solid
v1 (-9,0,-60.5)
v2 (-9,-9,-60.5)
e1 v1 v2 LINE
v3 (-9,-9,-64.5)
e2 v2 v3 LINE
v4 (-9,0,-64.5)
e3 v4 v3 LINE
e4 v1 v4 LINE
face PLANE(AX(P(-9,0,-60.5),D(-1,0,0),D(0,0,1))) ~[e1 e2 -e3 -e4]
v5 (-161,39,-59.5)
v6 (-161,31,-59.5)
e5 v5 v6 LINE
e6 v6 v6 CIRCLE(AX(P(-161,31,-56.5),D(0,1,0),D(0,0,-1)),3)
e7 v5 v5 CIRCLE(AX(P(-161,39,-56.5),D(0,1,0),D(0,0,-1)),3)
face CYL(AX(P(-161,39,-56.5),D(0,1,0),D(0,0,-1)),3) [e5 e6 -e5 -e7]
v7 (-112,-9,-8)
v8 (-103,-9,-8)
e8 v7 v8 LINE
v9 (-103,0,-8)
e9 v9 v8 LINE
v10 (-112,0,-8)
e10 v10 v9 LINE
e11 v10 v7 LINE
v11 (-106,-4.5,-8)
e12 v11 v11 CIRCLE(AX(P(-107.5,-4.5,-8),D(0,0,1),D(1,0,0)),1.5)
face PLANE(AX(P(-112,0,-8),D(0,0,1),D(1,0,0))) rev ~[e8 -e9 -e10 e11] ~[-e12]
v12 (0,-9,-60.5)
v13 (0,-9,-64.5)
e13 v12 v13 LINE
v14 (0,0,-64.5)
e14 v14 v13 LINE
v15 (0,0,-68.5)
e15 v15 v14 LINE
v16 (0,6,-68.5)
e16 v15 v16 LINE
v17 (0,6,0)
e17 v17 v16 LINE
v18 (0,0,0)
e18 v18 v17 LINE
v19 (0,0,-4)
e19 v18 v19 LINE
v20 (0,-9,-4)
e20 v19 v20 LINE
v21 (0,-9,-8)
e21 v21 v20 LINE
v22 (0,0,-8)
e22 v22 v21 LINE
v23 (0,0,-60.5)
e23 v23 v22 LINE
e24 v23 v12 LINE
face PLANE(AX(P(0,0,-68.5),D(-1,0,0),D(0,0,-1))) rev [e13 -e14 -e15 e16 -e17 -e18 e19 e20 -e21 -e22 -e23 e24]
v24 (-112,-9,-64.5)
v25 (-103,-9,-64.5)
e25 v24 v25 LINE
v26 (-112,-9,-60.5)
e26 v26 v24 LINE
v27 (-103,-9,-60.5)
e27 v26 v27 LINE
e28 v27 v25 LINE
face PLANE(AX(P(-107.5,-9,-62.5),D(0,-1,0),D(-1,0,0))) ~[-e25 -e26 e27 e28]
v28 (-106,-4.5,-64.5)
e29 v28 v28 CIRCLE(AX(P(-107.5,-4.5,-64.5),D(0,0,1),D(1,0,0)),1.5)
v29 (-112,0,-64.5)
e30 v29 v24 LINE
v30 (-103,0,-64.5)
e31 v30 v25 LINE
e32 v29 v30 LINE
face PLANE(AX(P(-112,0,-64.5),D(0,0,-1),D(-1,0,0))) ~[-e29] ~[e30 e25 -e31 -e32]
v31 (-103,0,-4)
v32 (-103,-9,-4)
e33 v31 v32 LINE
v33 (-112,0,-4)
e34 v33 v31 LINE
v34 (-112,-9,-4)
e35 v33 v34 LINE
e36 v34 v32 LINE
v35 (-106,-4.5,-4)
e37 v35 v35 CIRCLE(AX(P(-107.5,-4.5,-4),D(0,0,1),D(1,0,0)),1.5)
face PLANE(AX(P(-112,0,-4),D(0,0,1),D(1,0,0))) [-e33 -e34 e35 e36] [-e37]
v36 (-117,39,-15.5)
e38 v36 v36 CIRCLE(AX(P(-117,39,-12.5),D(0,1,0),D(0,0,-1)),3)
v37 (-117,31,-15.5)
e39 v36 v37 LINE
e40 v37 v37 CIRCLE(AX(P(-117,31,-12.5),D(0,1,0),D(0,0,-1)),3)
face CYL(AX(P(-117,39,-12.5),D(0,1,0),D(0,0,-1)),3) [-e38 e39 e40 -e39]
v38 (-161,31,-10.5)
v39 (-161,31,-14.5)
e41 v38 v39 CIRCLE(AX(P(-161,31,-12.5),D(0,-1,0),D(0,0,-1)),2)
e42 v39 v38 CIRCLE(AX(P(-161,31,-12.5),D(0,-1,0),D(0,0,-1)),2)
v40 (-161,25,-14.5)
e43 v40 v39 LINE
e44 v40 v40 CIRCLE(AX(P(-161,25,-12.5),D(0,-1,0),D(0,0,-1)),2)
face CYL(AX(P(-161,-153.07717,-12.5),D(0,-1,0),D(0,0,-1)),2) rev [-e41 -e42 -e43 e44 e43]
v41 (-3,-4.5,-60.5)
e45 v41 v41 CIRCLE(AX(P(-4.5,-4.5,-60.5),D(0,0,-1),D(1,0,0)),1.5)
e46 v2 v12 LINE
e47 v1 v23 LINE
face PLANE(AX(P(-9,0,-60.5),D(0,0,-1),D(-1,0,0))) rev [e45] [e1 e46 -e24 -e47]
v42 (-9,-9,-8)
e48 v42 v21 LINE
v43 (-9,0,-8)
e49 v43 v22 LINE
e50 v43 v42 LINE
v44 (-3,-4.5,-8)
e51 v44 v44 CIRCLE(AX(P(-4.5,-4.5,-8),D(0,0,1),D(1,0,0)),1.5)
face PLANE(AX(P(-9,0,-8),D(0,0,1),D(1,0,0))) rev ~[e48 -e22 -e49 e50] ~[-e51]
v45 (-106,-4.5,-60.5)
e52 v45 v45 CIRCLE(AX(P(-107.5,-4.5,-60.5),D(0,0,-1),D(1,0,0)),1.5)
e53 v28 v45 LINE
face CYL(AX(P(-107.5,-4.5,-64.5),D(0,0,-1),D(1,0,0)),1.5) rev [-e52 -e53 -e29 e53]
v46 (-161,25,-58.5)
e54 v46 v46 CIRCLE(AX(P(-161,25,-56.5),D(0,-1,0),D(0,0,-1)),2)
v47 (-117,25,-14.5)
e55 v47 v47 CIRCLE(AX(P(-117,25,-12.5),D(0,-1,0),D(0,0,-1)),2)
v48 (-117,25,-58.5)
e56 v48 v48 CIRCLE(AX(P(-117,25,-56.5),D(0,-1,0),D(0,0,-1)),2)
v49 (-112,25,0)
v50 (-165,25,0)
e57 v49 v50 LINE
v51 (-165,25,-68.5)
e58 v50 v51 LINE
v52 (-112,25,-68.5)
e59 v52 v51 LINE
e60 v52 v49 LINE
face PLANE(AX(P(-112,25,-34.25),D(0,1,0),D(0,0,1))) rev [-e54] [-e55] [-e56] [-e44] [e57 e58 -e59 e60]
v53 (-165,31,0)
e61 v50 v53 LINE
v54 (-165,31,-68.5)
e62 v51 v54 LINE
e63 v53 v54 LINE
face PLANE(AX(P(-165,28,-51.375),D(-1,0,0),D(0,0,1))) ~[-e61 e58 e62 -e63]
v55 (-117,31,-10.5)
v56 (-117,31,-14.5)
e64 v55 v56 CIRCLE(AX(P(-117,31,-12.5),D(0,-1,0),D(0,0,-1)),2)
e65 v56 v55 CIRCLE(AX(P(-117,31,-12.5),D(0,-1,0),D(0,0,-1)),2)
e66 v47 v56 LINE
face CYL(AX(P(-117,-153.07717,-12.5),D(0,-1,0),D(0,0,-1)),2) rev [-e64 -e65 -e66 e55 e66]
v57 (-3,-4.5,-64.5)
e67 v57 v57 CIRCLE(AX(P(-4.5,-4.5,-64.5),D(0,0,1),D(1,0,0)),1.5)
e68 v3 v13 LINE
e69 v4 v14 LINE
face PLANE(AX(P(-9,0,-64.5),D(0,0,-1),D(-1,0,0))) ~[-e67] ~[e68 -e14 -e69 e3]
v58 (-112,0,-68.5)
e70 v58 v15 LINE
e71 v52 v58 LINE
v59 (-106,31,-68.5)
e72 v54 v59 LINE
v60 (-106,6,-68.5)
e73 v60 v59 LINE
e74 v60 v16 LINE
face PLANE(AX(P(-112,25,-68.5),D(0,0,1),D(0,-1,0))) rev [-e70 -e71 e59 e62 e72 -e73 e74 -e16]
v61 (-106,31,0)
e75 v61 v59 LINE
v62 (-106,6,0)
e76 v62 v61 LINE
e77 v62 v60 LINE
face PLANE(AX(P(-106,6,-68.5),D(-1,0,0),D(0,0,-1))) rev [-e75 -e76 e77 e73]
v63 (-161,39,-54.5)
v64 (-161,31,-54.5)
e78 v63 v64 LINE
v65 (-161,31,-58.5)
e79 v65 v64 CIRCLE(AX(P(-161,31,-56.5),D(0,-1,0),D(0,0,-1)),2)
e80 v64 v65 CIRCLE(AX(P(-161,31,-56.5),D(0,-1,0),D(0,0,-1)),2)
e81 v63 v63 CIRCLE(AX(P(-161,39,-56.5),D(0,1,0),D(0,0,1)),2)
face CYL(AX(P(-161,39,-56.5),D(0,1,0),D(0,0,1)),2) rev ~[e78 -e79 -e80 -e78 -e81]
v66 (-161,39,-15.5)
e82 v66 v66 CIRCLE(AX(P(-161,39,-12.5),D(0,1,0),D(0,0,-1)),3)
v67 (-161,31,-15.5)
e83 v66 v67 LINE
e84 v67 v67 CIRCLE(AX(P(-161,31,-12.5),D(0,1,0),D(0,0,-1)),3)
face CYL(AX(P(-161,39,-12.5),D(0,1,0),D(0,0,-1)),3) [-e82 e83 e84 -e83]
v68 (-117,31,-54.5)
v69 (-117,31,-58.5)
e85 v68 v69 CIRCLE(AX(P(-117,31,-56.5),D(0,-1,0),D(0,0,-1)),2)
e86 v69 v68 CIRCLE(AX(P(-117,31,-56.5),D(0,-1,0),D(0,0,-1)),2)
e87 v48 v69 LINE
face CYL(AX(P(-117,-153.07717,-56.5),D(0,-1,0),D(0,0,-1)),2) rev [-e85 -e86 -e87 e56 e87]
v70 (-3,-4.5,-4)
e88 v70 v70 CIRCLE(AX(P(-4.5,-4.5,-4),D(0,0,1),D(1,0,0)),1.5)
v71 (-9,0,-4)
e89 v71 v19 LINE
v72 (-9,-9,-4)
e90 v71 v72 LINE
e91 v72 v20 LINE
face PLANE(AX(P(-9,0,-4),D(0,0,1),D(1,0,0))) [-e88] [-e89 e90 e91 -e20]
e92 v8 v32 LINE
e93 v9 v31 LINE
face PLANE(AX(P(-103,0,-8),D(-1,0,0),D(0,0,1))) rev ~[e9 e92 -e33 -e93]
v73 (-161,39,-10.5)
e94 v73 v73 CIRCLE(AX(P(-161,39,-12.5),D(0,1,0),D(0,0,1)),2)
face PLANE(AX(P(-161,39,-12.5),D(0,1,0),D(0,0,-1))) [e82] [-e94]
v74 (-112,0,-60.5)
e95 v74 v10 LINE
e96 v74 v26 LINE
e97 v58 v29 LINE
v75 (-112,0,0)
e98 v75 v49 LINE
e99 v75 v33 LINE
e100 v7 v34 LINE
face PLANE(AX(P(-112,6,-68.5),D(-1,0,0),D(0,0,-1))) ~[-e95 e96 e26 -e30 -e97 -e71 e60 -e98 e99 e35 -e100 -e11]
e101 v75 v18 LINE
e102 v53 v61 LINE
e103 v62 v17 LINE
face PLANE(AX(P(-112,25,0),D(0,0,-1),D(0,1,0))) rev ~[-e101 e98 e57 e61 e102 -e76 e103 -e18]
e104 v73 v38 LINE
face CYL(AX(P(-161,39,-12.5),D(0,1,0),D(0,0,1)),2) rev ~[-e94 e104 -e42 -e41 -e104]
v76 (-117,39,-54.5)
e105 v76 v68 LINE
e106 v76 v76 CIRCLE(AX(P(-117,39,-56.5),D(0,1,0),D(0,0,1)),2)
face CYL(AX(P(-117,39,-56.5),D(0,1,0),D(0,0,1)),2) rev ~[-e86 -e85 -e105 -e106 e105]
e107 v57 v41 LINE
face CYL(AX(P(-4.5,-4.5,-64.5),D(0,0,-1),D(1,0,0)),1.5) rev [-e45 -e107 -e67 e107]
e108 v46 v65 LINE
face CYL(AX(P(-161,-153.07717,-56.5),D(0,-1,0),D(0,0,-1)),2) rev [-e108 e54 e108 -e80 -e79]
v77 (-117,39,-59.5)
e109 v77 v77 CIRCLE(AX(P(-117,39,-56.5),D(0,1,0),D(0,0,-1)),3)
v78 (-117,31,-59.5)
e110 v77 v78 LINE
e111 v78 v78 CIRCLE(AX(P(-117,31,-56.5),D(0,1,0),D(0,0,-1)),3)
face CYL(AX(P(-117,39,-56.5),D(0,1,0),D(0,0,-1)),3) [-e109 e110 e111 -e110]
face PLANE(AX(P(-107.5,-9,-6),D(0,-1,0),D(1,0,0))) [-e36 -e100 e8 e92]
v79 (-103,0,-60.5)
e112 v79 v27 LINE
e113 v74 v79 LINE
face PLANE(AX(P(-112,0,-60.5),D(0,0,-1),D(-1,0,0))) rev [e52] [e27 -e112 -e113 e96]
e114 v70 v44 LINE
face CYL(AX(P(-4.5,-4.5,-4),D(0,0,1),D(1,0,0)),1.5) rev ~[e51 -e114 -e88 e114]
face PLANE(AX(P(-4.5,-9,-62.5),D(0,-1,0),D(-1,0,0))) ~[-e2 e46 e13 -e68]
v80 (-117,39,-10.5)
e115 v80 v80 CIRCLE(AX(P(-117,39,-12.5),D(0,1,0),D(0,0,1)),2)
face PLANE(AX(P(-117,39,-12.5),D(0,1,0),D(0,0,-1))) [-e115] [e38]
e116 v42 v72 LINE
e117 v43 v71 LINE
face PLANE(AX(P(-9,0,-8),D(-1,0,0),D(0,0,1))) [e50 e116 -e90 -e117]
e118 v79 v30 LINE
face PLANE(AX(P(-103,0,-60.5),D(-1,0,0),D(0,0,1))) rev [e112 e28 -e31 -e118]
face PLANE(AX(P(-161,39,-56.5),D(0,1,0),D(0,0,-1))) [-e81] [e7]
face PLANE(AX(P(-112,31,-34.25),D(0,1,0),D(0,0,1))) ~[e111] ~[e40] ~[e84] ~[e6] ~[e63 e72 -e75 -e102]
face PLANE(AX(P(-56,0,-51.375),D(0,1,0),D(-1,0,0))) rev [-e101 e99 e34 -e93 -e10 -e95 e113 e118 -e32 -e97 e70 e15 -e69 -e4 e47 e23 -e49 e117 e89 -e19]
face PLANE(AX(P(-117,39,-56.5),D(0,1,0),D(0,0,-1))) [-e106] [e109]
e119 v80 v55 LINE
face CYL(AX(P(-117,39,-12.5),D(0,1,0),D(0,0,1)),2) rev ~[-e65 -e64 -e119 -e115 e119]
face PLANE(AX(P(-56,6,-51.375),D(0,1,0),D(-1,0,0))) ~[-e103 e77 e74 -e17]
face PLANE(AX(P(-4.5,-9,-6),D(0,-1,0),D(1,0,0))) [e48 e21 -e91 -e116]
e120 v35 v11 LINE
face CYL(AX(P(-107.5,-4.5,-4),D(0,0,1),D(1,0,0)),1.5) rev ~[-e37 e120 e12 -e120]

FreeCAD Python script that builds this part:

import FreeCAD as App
import Part
import Sketcher
from FreeCAD import Vector

doc = App.newDocument("Part")
body = doc.addObject("PartDesign::Body", "Body")

# Sketch on XZ plane
sketch1 = body.newObject("Sketcher::SketchObject", "Sketch")
sketch1.AttachmentSupport = (doc.getObject("XZ_Plane"), [""])
sketch1.MapMode = "FlatFace"
sketch1.addGeometry(Part.LineSegment(Vector(-112, -34, 0), Vector(-112, 0, 0)), False)
sketch1.addGeometry(Part.LineSegment(Vector(-112, 0, 0), Vector(0, 0, 0)), False)
sketch1.addGeometry(Part.LineSegment(Vector(0, 0, 0), Vector(0, -34, 0)), False)
sketch1.addGeometry(Part.LineSegment(Vector(0, -34, 0), Vector(-112, -34, 0)), False)
sketch1.addConstraint(Sketcher.Constraint("Coincident", 0, 2, 1, 1))
sketch1.addConstraint(Sketcher.Constraint("Coincident", 1, 2, 2, 1))
sketch1.addConstraint(Sketcher.Constraint("Coincident", 2, 2, 3, 1))
sketch1.addConstraint(Sketcher.Constraint("Coincident", 3, 2, 0, 1))
sketch1.addConstraint(Sketcher.Constraint("Vertical", 0))
sketch1.addConstraint(Sketcher.Constraint("Horizontal", 1))
sketch1.addConstraint(Sketcher.Constraint("Vertical", 2))
sketch1.addConstraint(Sketcher.Constraint("Horizontal", 3))
sketch1.addConstraint(Sketcher.Constraint("Coincident", 1, 2, -1, 1))
sketch1.addConstraint(Sketcher.Constraint("DistanceX", 1, 1, 1, 2, 112.0))
sketch1.addConstraint(Sketcher.Constraint("DistanceY", 0, 1, 0, 2, 34.25))
pad1 = body.newObject("PartDesign::Pad", "Pad")
pad1.Profile = sketch1
pad1.Length = 6
pad1.Reversed = True

# Sketch on XZ plane
sketch2 = body.newObject("Sketcher::SketchObject", "Sketch001")
sketch2.AttachmentSupport = (doc.getObject("XZ_Plane"), [""])
sketch2.MapMode = "FlatFace"
sketch2.addGeometry(Part.LineSegment(Vector(-112, -4, 0), Vector(-112, -8, 0)), False)
sketch2.addGeometry(Part.LineSegment(Vector(-112, -8, 0), Vector(-103, -8, 0)), False)
sketch2.addGeometry(Part.LineSegment(Vector(-103, -8, 0), Vector(-103, -4, 0)), False)
sketch2.addGeometry(Part.LineSegment(Vector(-103, -4, 0), Vector(-112, -4, 0)), False)
sketch2.addGeometry(Part.LineSegment(Vector(-9, -4, 0), Vector(-9, -8, 0)), False)
sketch2.addGeometry(Part.LineSegment(Vector(-9, -8, 0), Vector(0, -8, 0)), False)
sketch2.addGeometry(Part.LineSegment(Vector(0, -8, 0), Vector(0, -4, 0)), False)
sketch2.addGeometry(Part.LineSegment(Vector(0, -4, 0), Vector(-9, -4, 0)), False)
sketch2.addConstraint(Sketcher.Constraint("Coincident", 0, 2, 1, 1))
sketch2.addConstraint(Sketcher.Constraint("Coincident", 1, 2, 2, 1))
sketch2.addConstraint(Sketcher.Constraint("Coincident", 2, 2, 3, 1))
sketch2.addConstraint(Sketcher.Constraint("Coincident", 3, 2, 0, 1))
sketch2.addConstraint(Sketcher.Constraint("Coincident", 4, 2, 5, 1))
sketch2.addConstraint(Sketcher.Constraint("Coincident", 5, 2, 6, 1))
sketch2.addConstraint(Sketcher.Constraint("Coincident", 6, 2, 7, 1))
sketch2.addConstraint(Sketcher.Constraint("Coincident", 7, 2, 4, 1))
sketch2.addConstraint(Sketcher.Constraint("Vertical", 0))
sketch2.addConstraint(Sketcher.Constraint("Horizontal", 1))
sketch2.addConstraint(Sketcher.Constraint("Vertical", 2))
sketch2.addConstraint(Sketcher.Constraint("Horizontal", 3))
sketch2.addConstraint(Sketcher.Constraint("Vertical", 4))
sketch2.addConstraint(Sketcher.Constraint("Horizontal", 5))
sketch2.addConstraint(Sketcher.Constraint("Vertical", 6))
sketch2.addConstraint(Sketcher.Constraint("Horizontal", 7))
sketch2.addConstraint(Sketcher.Constraint("PointOnObject", 5, 2, -2))
sketch2.addConstraint(Sketcher.Constraint("Horizontal", 1, 2, 4, 2))
sketch2.addConstraint(Sketcher.Constraint("Horizontal", 3, 2, 6, 2))
sketch2.addConstraint(Sketcher.Constraint("Equal", 3, 5))
sketch2.addConstraint(Sketcher.Constraint("DistanceX", 1, 1, 1, 2, 9.0))
sketch2.addConstraint(Sketcher.Constraint("DistanceY", 0, 2, 0, 1, 4.0))
sketch2.addConstraint(Sketcher.Constraint("DistanceX", 0, 2, -1, 1, 112.0))
sketch2.addConstraint(Sketcher.Constraint("DistanceY", 0, 2, -1, 1, 8.0))
pad2 = body.newObject("PartDesign::Pad", "Pad001")
pad2.Profile = sketch2
pad2.Length = 9

# Sketch on XY plane
sketch3 = body.newObject("Sketcher::SketchObject", "Sketch002")
sketch3.AttachmentSupport = (doc.getObject("XY_Plane"), [""])
sketch3.MapMode = "FlatFace"
sketch3.AttachmentOffset = App.Placement(Vector(0, 0, -4), App.Rotation())
sketch3.addGeometry(Part.Circle(Vector(-107.5, -4.5, 0), Vector(0, 0, 1), 1.5), False)
sketch3.addGeometry(Part.Circle(Vector(-4.5, -4.5, 0), Vector(0, 0, 1), 1.5), False)
sketch3.addConstraint(Sketcher.Constraint("Equal", 0, 1))
sketch3.addConstraint(Sketcher.Constraint("Horizontal", 0, 3, 1, 3))
sketch3.addConstraint(Sketcher.Constraint("Diameter", 0, 3.0))
sketch3.addConstraint(Sketcher.Constraint("DistanceX", 0, 3, 1, 3, 103.0))
sketch3.addConstraint(Sketcher.Constraint("DistanceX", 0, 3, -1, 1, 107.5))
sketch3.addConstraint(Sketcher.Constraint("DistanceY", 0, 3, -1, 1, 4.5))
pocket1 = body.newObject("PartDesign::Pocket", "Pocket")
pocket1.Profile = sketch3
pocket1.Type = "ThroughAll"

# Sketch on XZ plane
sketch4 = body.newObject("Sketcher::SketchObject", "Sketch003")
sketch4.AttachmentSupport = (doc.getObject("XZ_Plane"), [""])
sketch4.MapMode = "FlatFace"
sketch4.AttachmentOffset = App.Placement(Vector(0, 0, -6), App.Rotation())
sketch4.addGeometry(Part.LineSegment(Vector(-112, -34, 0), Vector(-112, 0, 0)), False)
sketch4.addGeometry(Part.LineSegment(Vector(-112, 0, 0), Vector(-106, 0, 0)), False)
sketch4.addGeometry(Part.LineSegment(Vector(-106, 0, 0), Vector(-106, -34, 0)), False)
sketch4.addGeometry(Part.LineSegment(Vector(-106, -34, 0), Vector(-112, -34, 0)), False)
sketch4.addConstraint(Sketcher.Constraint("Coincident", 0, 2, 1, 1))
sketch4.addConstraint(Sketcher.Constraint("Coincident", 1, 2, 2, 1))
sketch4.addConstraint(Sketcher.Constraint("Coincident", 2, 2, 3, 1))
sketch4.addConstraint(Sketcher.Constraint("Coincident", 3, 2, 0, 1))
sketch4.addConstraint(Sketcher.Constraint("Vertical", 0))
sketch4.addConstraint(Sketcher.Constraint("Horizontal", 1))
sketch4.addConstraint(Sketcher.Constraint("Vertical", 2))
sketch4.addConstraint(Sketcher.Constraint("Horizontal", 3))
sketch4.addConstraint(Sketcher.Constraint("PointOnObject", 0, 2, -1))
sketch4.addConstraint(Sketcher.Constraint("DistanceX", 1, 1, 1, 2, 6.0))
sketch4.addConstraint(Sketcher.Constraint("DistanceX", 0, 2, -1, 1, 112.0))
sketch4.addConstraint(Sketcher.Constraint("DistanceY", 0, 1, 0, 2, 34.25))
pad3 = body.newObject("PartDesign::Pad", "Pad002")
pad3.Profile = sketch4
pad3.Length = 25
pad3.Reversed = True

# Sketch on YZ plane
sketch5 = body.newObject("Sketcher::SketchObject", "Sketch004")
sketch5.AttachmentSupport = (doc.getObject("YZ_Plane"), [""])
sketch5.MapMode = "FlatFace"
sketch5.AttachmentOffset = App.Placement(Vector(0, 0, -112), App.Rotation())
sketch5.addGeometry(Part.LineSegment(Vector(31, -34, 0), Vector(25, -34, 0)), False)
sketch5.addGeometry(Part.LineSegment(Vector(25, -34, 0), Vector(25, 0, 0)), False)
sketch5.addGeometry(Part.LineSegment(Vector(25, 0, 0), Vector(31, 0, 0)), False)
sketch5.addGeometry(Part.LineSegment(Vector(31, 0, 0), Vector(31, -34, 0)), False)
sketch5.addConstraint(Sketcher.Constraint("Coincident", 0, 2, 1, 1))
sketch5.addConstraint(Sketcher.Constraint("Coincident", 1, 2, 2, 1))
sketch5.addConstraint(Sketcher.Constraint("Coincident", 2, 2, 3, 1))
sketch5.addConstraint(Sketcher.Constraint("Coincident", 3, 2, 0, 1))
sketch5.addConstraint(Sketcher.Constraint("Horizontal", 0))
sketch5.addConstraint(Sketcher.Constraint("Vertical", 1))
sketch5.addConstraint(Sketcher.Constraint("Horizontal", 2))
sketch5.addConstraint(Sketcher.Constraint("Vertical", 3))
sketch5.addConstraint(Sketcher.Constraint("PointOnObject", 1, 2, -1))
sketch5.addConstraint(Sketcher.Constraint("DistanceX", 0, 2, 0, 1, 6.0))
sketch5.addConstraint(Sketcher.Constraint("DistanceX", -1, 1, 0, 2, 25.0))
sketch5.addConstraint(Sketcher.Constraint("DistanceY", 1, 1, 1, 2, 34.25))
pad4 = body.newObject("PartDesign::Pad", "Pad003")
pad4.Profile = sketch5
pad4.Length = 53
pad4.Reversed = True
doc.recompute()

datumplane = body.newObject("PartDesign::Plane", "DatumPlane")
datumplane.AttachmentSupport = (doc.getObject("XY_Plane"), [""])
datumplane.MapMode = "FlatFace"
datumplane.AttachmentOffset = App.Placement(Vector(0, 0, -34.25), App.Rotation())
mirrored = body.newObject("PartDesign::Mirrored", "Mirrored")
mirrored.Originals = [pad1, pad2, pocket1, pad3, pad4]
mirrored.MirrorPlane = (datumplane, [""])
body.Tip = mirrored

# Sketch on XZ plane
sketch6 = body.newObject("Sketcher::SketchObject", "Sketch005")
sketch6.AttachmentSupport = (doc.getObject("XZ_Plane"), [""])
sketch6.MapMode = "FlatFace"
sketch6.AttachmentOffset = App.Placement(Vector(0, 0, -31), App.Rotation())
sketch6.addGeometry(Part.Circle(Vector(-161, -12.5, 0), Vector(0, 0, 1), 2), False)
sketch6.addGeometry(Part.Circle(Vector(-117, -12.5, 0), Vector(0, 0, 1), 2), False)
sketch6.addGeometry(Part.Circle(Vector(-161, -56.5, 0), Vector(0, 0, 1), 2), False)
sketch6.addGeometry(Part.Circle(Vector(-117, -56.5, 0), Vector(0, 0, 1), 2), False)
sketch6.addConstraint(Sketcher.Constraint("Equal", 0, 1))
sketch6.addConstraint(Sketcher.Constraint("Equal", 1, 2))
sketch6.addConstraint(Sketcher.Constraint("Equal", 2, 3))
sketch6.addConstraint(Sketcher.Constraint("Horizontal", 0, 3, 1, 3))
sketch6.addConstraint(Sketcher.Constraint("Horizontal", 2, 3, 3, 3))
sketch6.addConstraint(Sketcher.Constraint("Vertical", 0, 3, 2, 3))
sketch6.addConstraint(Sketcher.Constraint("Vertical", 1, 3, 3, 3))
sketch6.addConstraint(Sketcher.Constraint("Diameter", 0, 4.0))
sketch6.addConstraint(Sketcher.Constraint("DistanceX", 0, 3, -1, 1, 161.0))
sketch6.addConstraint(Sketcher.Constraint("DistanceX", 1, 3, -1, 1, 117.0))
sketch6.addConstraint(Sketcher.Constraint("DistanceY", 2, 3, 0, 3, 44.0))
sketch6.addConstraint(Sketcher.Constraint("DistanceY", 0, 3, -1, 1, 12.5))
pocket2 = body.newObject("PartDesign::Pocket", "Pocket001")
pocket2.Profile = sketch6
pocket2.Type = "ThroughAll"
pocket2.Midplane = True

# Sketch on XZ plane
sketch7 = body.newObject("Sketcher::SketchObject", "Sketch006")
sketch7.AttachmentSupport = (doc.getObject("XZ_Plane"), [""])
sketch7.MapMode = "FlatFace"
sketch7.AttachmentOffset = App.Placement(Vector(0, 0, -39), App.Rotation())
sketch7.addGeometry(Part.Circle(Vector(-161, -56.5, 0), Vector(0, 0, 1), 3), False)
sketch7.addGeometry(Part.Circle(Vector(-161, -56.5, 0), Vector(0, 0, 1), 2), False)
sketch7.addGeometry(Part.Circle(Vector(-117, -56.5, 0), Vector(0, 0, 1), 3), False)
sketch7.addGeometry(Part.Circle(Vector(-117, -56.5, 0), Vector(0, 0, 1), 2), False)
sketch7.addGeometry(Part.Circle(Vector(-117, -12.5, 0), Vector(0, 0, 1), 3), False)
sketch7.addGeometry(Part.Circle(Vector(-117, -12.5, 0), Vector(0, 0, 1), 2), False)
sketch7.addGeometry(Part.Circle(Vector(-161, -12.5, 0), Vector(0, 0, 1), 3), False)
sketch7.addGeometry(Part.Circle(Vector(-161, -12.5, 0), Vector(0, 0, 1), 2), False)
sketch7.addConstraint(Sketcher.Constraint("Coincident", 1, 3, 0, 3))
sketch7.addConstraint(Sketcher.Constraint("Coincident", 3, 3, 2, 3))
sketch7.addConstraint(Sketcher.Constraint("Coincident", 5, 3, 4, 3))
sketch7.addConstraint(Sketcher.Constraint("Coincident", 7, 3, 6, 3))
sketch7.addConstraint(Sketcher.Constraint("Equal", 0, 2))
sketch7.addConstraint(Sketcher.Constraint("Equal", 1, 3))
sketch7.addConstraint(Sketcher.Constraint("Equal", 2, 4))
sketch7.addConstraint(Sketcher.Constraint("Equal", 3, 5))
sketch7.addConstraint(Sketcher.Constraint("Equal", 4, 6))
sketch7.addConstraint(Sketcher.Constraint("Equal", 5, 7))
sketch7.addConstraint(Sketcher.Constraint("Horizontal", 1, 3, 2, 3))
sketch7.addConstraint(Sketcher.Constraint("Horizontal", 5, 3, 6, 3))
sketch7.addConstraint(Sketcher.Constraint("Vertical", 3, 3, 4, 3))
sketch7.addConstraint(Sketcher.Constraint("Vertical", 1, 3, 6, 3))
sketch7.addConstraint(Sketcher.Constraint("Diameter", 0, 6.0))
sketch7.addConstraint(Sketcher.Constraint("Diameter", 1, 4.0))
sketch7.addConstraint(Sketcher.Constraint("DistanceX", 0, 3, -1, 1, 161.0))
sketch7.addConstraint(Sketcher.Constraint("DistanceX", 2, 3, -1, 1, 117.0))
sketch7.addConstraint(Sketcher.Constraint("DistanceY", 2, 3, 4, 3, 44.0))
sketch7.addConstraint(Sketcher.Constraint("DistanceY", 0, 3, -1, 1, 56.5))
pad5 = body.newObject("PartDesign::Pad", "Pad004")
pad5.Profile = sketch7
pad5.Length = 8

doc.recompute()
